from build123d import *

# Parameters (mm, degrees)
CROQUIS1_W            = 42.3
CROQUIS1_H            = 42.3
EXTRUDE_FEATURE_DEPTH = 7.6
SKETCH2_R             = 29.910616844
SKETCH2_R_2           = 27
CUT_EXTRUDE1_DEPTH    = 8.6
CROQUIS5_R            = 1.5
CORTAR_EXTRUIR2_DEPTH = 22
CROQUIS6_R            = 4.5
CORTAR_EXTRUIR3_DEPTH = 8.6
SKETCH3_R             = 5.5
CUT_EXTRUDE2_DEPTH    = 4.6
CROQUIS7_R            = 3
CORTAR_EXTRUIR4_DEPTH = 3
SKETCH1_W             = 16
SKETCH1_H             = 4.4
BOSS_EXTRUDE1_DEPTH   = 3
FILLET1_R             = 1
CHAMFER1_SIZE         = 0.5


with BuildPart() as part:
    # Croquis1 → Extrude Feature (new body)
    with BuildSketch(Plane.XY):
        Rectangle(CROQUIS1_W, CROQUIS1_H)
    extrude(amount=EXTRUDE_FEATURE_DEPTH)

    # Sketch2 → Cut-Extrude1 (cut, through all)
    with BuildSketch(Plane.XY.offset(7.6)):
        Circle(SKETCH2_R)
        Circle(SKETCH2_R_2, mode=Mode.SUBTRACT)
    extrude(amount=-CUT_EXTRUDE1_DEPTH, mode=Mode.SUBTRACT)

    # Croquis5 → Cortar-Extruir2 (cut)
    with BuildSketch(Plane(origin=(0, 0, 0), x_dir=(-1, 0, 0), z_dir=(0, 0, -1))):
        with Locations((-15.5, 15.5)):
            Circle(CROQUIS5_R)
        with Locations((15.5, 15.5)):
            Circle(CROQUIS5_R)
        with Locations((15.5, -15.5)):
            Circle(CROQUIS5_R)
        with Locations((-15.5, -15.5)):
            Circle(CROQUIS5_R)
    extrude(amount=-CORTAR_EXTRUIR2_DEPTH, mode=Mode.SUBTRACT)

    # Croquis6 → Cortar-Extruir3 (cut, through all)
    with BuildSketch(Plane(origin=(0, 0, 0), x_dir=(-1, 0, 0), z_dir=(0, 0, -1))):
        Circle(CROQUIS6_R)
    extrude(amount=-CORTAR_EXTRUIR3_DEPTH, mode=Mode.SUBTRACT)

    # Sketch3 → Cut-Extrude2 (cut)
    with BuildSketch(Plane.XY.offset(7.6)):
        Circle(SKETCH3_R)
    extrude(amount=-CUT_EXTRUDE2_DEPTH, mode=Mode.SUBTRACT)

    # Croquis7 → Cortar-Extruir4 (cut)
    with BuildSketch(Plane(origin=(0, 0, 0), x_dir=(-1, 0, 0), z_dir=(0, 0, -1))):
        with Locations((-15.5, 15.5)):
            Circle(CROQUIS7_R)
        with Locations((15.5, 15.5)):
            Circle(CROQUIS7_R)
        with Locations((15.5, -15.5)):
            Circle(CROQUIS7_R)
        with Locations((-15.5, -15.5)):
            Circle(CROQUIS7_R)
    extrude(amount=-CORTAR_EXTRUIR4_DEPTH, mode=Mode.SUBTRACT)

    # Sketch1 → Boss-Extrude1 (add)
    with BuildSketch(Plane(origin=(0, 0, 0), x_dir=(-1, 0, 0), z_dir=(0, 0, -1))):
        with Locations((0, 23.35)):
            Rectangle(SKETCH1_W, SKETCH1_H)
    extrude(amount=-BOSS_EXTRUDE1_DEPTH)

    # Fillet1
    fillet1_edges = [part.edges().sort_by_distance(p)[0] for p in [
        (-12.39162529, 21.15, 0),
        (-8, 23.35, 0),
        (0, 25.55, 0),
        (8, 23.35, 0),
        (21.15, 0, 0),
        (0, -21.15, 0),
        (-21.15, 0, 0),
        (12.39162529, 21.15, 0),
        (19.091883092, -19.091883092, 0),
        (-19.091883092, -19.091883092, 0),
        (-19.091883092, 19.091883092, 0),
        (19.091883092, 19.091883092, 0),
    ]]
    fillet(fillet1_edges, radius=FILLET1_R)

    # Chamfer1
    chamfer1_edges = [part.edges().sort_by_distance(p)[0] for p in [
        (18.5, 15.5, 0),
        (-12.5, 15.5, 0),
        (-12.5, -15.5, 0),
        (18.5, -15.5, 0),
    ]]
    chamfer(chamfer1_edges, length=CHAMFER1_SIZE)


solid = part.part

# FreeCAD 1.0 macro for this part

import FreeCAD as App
import Part
import Sketcher
from FreeCAD import Vector


def edges_at(feature, points):
    """Names of the edges that pass closest to the given points."""
    edges = feature.Shape.Edges
    near = lambda p: min(range(len(edges)), key=lambda i: edges[i].distToShape(Part.Vertex(*p))[0])
    return sorted({f"Edge{near(p) + 1}" for p in points})


def add_polygon(sketch, points):
    """Adds a closed chain of lines whose ends are joined by coincident constraints."""
    first, n = sketch.GeometryCount, len(points)
    for a, b in zip(points, points[1:] + points[:1]):
        sketch.addGeometry(Part.LineSegment(App.Vector(*a, 0), App.Vector(*b, 0)), False)
    for i in range(n):
        sketch.addConstraint(Sketcher.Constraint("Coincident", first + i, 2, first + (i + 1) % n, 1))

doc = App.newDocument("Part")
body = doc.addObject("PartDesign::Body", "Body")

sketch1 = body.newObject("Sketcher::SketchObject", "Sketch")
sketch1.AttachmentSupport = (doc.getObject("XY_Plane"), [""])
sketch1.MapMode = "FlatFace"
add_polygon(sketch1, [(-21.15, 21.15), (-21.15, -21.15), (21.15, -21.15), (21.15, 21.15)])
sketch1.addConstraint(Sketcher.Constraint("Vertical", 0))
sketch1.addConstraint(Sketcher.Constraint("Horizontal", 1))
sketch1.addConstraint(Sketcher.Constraint("Vertical", 2))
sketch1.addConstraint(Sketcher.Constraint("Horizontal", 3))
sketch1.addConstraint(Sketcher.Constraint("Symmetric", 0, 2, 2, 2, -1, 1))
sketch1.addConstraint(Sketcher.Constraint("Equal", 3, 0))
sketch1.addConstraint(Sketcher.Constraint("DistanceX", 1, 1, 1, 2, 42.3))
pad1 = body.newObject("PartDesign::Pad", "Pad")
pad1.Profile = sketch1
pad1.Length = 7.6

sketch2 = body.newObject("Sketcher::SketchObject", "Sketch001")
sketch2.AttachmentSupport = (doc.getObject("XY_Plane"), [""])
sketch2.MapMode = "FlatFace"
sketch2.AttachmentOffset = App.Placement(Vector(0, 0, 7.6), App.Rotation())
sketch2.addGeometry(Part.Circle(Vector(0, 0, 0), Vector(0, 0, 1), 29.910617), False)
sketch2.addGeometry(Part.Circle(Vector(0, 0, 0), Vector(0, 0, 1), 27), False)
sketch2.addConstraint(Sketcher.Constraint("Coincident", 0, 3, -1, 1))
sketch2.addConstraint(Sketcher.Constraint("Coincident", 1, 3, -1, 1))
sketch2.addConstraint(Sketcher.Constraint("Diameter", 1, 54.0))
sketch2.addConstraint(Sketcher.Constraint("Diameter", 0, 59.821234))
pocket1 = body.newObject("PartDesign::Pocket", "Pocket")
pocket1.Profile = sketch2
pocket1.Type = "ThroughAll"

sketch3 = body.newObject("Sketcher::SketchObject", "Sketch002")
sketch3.AttachmentSupport = (doc.getObject("XY_Plane"), [""])
sketch3.MapMode = "FlatFace"
sketch3.addGeometry(Part.Circle(Vector(15.5, 15.5, 0), Vector(0, 0, 1), 1.5), False)
sketch3.addGeometry(Part.Circle(Vector(-15.5, 15.5, 0), Vector(0, 0, 1), 1.5), False)
sketch3.addGeometry(Part.Circle(Vector(-15.5, -15.5, 0), Vector(0, 0, 1), 1.5), False)
sketch3.addGeometry(Part.Circle(Vector(15.5, -15.5, 0), Vector(0, 0, 1), 1.5), False)
sketch3.addConstraint(Sketcher.Constraint("Equal", 0, 1))
sketch3.addConstraint(Sketcher.Constraint("Equal", 1, 2))
sketch3.addConstraint(Sketcher.Constraint("Equal", 2, 3))
sketch3.addConstraint(Sketcher.Constraint("Symmetric", 0, 3, 2, 3, -1, 1))
sketch3.addConstraint(Sketcher.Constraint("Symmetric", 1, 3, 3, 3, -1, 1))
sketch3.addConstraint(Sketcher.Constraint("Symmetric", 0, 3, 1, 3, -2))
sketch3.addConstraint(Sketcher.Constraint("Diameter", 0, 3.0))
sketch3.addConstraint(Sketcher.Constraint("DistanceX", 1, 3, 0, 3, 31.0))
sketch3.addConstraint(Sketcher.Constraint("DistanceY", 2, 3, 1, 3, 31.0))
pocket2 = body.newObject("PartDesign::Pocket", "Pocket001")
pocket2.Profile = sketch3
pocket2.Length = 22
pocket2.Reversed = True

sketch4 = body.newObject("Sketcher::SketchObject", "Sketch003")
sketch4.AttachmentSupport = (doc.getObject("XY_Plane"), [""])
sketch4.MapMode = "FlatFace"
sketch4.addGeometry(Part.Circle(Vector(0, 0, 0), Vector(0, 0, 1), 4.5), False)
sketch4.addConstraint(Sketcher.Constraint("Coincident", 0, 3, -1, 1))
sketch4.addConstraint(Sketcher.Constraint("Diameter", 0, 9.0))
pocket3 = body.newObject("PartDesign::Pocket", "Pocket002")
pocket3.Profile = sketch4
pocket3.Type = "ThroughAll"
pocket3.Reversed = True

sketch5 = body.newObject("Sketcher::SketchObject", "Sketch004")
sketch5.AttachmentSupport = (doc.getObject("XY_Plane"), [""])
sketch5.MapMode = "FlatFace"
sketch5.AttachmentOffset = App.Placement(Vector(0, 0, 7.6), App.Rotation())
sketch5.addGeometry(Part.Circle(Vector(0, 0, 0), Vector(0, 0, 1), 5.5), False)
sketch5.addConstraint(Sketcher.Constraint("Coincident", 0, 3, -1, 1))
sketch5.addConstraint(Sketcher.Constraint("Diameter", 0, 11.0))
pocket4 = body.newObject("PartDesign::Pocket", "Pocket003")
pocket4.Profile = sketch5
pocket4.Length = 4.6

sketch6 = body.newObject("Sketcher::SketchObject", "Sketch005")
sketch6.AttachmentSupport = (doc.getObject("XY_Plane"), [""])
sketch6.MapMode = "FlatFace"
sketch6.addGeometry(Part.Circle(Vector(15.5, 15.5, 0), Vector(0, 0, 1), 3), False)
sketch6.addGeometry(Part.Circle(Vector(-15.5, 15.5, 0), Vector(0, 0, 1), 3), False)
sketch6.addGeometry(Part.Circle(Vector(-15.5, -15.5, 0), Vector(0, 0, 1), 3), False)
sketch6.addGeometry(Part.Circle(Vector(15.5, -15.5, 0), Vector(0, 0, 1), 3), False)
sketch6.addConstraint(Sketcher.Constraint("Equal", 0, 1))
sketch6.addConstraint(Sketcher.Constraint("Equal", 1, 2))
sketch6.addConstraint(Sketcher.Constraint("Equal", 2, 3))
sketch6.addConstraint(Sketcher.Constraint("Symmetric", 0, 3, 2, 3, -1, 1))
sketch6.addConstraint(Sketcher.Constraint("Symmetric", 1, 3, 3, 3, -1, 1))
sketch6.addConstraint(Sketcher.Constraint("Symmetric", 0, 3, 1, 3, -2))
sketch6.addConstraint(Sketcher.Constraint("Diameter", 0, 6.0))
sketch6.addConstraint(Sketcher.Constraint("DistanceX", 1, 3, 0, 3, 31.0))
sketch6.addConstraint(Sketcher.Constraint("DistanceY", 2, 3, 1, 3, 31.0))
pocket5 = body.newObject("PartDesign::Pocket", "Pocket004")
pocket5.Profile = sketch6
pocket5.Length = 3
pocket5.Reversed = True

sketch7 = body.newObject("Sketcher::SketchObject", "Sketch006")
sketch7.AttachmentSupport = (doc.getObject("XY_Plane"), [""])
sketch7.MapMode = "FlatFace"
add_polygon(sketch7, [(8, 25.55), (8, 21.15), (-8, 21.15), (-8, 25.55)])
sketch7.addConstraint(Sketcher.Constraint("Vertical", 0))
sketch7.addConstraint(Sketcher.Constraint("Horizontal", 1))
sketch7.addConstraint(Sketcher.Constraint("Vertical", 2))
sketch7.addConstraint(Sketcher.Constraint("Horizontal", 3))
sketch7.addConstraint(Sketcher.Constraint("DistanceX", 1, 2, 1, 1, 16.0))
sketch7.addConstraint(Sketcher.Constraint("DistanceY", 0, 2, 0, 1, 4.4))
sketch7.addConstraint(Sketcher.Constraint("DistanceX", -1, 1, 0, 2, 8.0))
sketch7.addConstraint(Sketcher.Constraint("DistanceY", -1, 1, 0, 2, 21.15))
pad2 = body.newObject("PartDesign::Pad", "Pad001")
pad2.Profile = sketch7
pad2.Length = 3
doc.recompute()

fillet = body.newObject("PartDesign::Fillet", "Fillet")
fillet.Base = (pad2, edges_at(pad2, [
    (-12.392, 21.15, 0),
    (-8, 23.35, 0),
    (0, 25.55, 0),
    (8, 23.35, 0),
    (21.15, 0, 0),
    (0, -21.15, 0),
    (-21.15, 0, 0),
    (12.392, 21.15, 0),
    (19.092, -19.092, 0),
    (-19.092, -19.092, 0),
    (-19.092, 19.092, 0),
    (19.092, 19.092, 0),
]))
fillet.Radius = 1
doc.recompute()

chamfer = body.newObject("PartDesign::Chamfer", "Chamfer")
chamfer.Base = (fillet, edges_at(fillet, [
    (18.5, 15.5, 0),
    (-12.5, 15.5, 0),
    (-12.5, -15.5, 0),
    (18.5, -15.5, 0),
]))
chamfer.Size = 0.5

doc.recompute()
